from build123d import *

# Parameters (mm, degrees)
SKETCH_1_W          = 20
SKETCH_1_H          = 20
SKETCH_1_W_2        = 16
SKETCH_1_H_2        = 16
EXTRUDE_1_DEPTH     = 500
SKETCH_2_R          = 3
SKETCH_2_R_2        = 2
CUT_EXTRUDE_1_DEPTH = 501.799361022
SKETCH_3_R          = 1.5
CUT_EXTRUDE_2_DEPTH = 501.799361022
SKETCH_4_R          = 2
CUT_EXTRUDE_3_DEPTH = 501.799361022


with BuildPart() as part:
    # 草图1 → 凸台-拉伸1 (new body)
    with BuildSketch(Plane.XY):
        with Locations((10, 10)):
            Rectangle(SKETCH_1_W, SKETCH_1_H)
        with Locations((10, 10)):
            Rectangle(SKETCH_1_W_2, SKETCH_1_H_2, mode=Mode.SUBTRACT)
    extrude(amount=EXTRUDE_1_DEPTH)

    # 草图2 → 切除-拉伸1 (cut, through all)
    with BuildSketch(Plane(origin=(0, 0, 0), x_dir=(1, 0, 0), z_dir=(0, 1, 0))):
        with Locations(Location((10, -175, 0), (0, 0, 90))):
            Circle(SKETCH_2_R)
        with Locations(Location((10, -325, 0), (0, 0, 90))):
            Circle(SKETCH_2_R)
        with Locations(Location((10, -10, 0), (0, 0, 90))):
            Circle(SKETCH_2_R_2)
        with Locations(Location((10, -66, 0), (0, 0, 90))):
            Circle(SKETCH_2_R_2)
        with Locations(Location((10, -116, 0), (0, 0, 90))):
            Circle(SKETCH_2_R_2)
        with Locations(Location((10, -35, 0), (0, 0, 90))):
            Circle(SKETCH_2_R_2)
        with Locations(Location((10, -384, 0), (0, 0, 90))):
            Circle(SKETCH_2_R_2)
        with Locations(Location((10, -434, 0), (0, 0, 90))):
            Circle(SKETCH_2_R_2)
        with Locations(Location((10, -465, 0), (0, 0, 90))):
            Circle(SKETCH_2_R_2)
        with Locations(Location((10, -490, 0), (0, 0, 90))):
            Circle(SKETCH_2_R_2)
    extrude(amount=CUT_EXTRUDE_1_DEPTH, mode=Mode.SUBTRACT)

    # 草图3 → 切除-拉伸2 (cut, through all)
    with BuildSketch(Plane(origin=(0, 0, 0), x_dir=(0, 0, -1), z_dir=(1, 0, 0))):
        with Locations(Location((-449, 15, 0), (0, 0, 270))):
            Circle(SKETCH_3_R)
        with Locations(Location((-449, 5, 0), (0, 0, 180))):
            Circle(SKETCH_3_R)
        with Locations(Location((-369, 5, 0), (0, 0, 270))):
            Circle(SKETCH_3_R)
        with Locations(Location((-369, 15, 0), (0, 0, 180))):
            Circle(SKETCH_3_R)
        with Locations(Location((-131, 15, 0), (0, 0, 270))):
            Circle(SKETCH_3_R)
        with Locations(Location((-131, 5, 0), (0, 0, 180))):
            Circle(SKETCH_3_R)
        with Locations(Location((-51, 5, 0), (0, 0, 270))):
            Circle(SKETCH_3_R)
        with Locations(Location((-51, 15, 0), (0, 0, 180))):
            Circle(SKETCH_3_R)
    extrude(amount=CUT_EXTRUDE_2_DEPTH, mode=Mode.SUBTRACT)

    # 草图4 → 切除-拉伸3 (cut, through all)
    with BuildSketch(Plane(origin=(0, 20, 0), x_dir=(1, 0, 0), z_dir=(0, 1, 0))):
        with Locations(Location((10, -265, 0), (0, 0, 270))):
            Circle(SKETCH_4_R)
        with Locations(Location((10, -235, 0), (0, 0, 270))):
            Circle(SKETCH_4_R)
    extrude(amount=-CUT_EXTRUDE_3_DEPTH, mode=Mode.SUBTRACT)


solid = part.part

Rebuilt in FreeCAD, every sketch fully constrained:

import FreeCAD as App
import Part
import Sketcher
from FreeCAD import Vector


def add_polygon(sketch, points):
    """Adds a closed chain of lines whose ends are joined by coincident constraints."""
    first, n = sketch.GeometryCount, len(points)
    for a, b in zip(points, points[1:] + points[:1]):
        sketch.addGeometry(Part.LineSegment(App.Vector(*a, 0), App.Vector(*b, 0)), False)
    for i in range(n):
        sketch.addConstraint(Sketcher.Constraint("Coincident", first + i, 2, first + (i + 1) % n, 1))

doc = App.newDocument("Part")
body = doc.addObject("PartDesign::Body", "Body")

# Sketch on XY plane
sketch1 = doc.addObject("Sketcher::SketchObject", "Sketch")
body.addObject(sketch1)
sketch1.AttachmentSupport = (doc.XY_Plane, [""])
sketch1.MapMode = "FlatFace"
add_polygon(sketch1, [(0, 20), (0, 0), (20, 0), (20, 20)])  # lines 0-3
add_polygon(sketch1, [(18, 2), (2, 2), (2, 18), (18, 18)])  # lines 4-7
sketch1.addConstraint([
    Sketcher.Constraint("Vertical", 0),
    Sketcher.Constraint("Horizontal", 1),
    Sketcher.Constraint("Vertical", 2),
    Sketcher.Constraint("Horizontal", 3),
    Sketcher.Constraint("Horizontal", 4),
    Sketcher.Constraint("Vertical", 5),
    Sketcher.Constraint("Horizontal", 6),
    Sketcher.Constraint("Vertical", 7),
    Sketcher.Constraint("Coincident", 0, 2, -1, 1),
    Sketcher.Constraint("Equal", 3, 0),
    Sketcher.Constraint("Equal", 6, 5),
    Sketcher.Constraint("DistanceX", 1, 1, 1, 2, 20.0),
    Sketcher.Constraint("DistanceX", 4, 2, 4, 1, 16.0),
    Sketcher.Constraint("DistanceX", -1, 1, 4, 2, 2.0),
    Sketcher.Constraint("DistanceY", -1, 1, 4, 2, 2.0),
])
pad1 = doc.addObject("PartDesign::Pad", "Pad")
body.addObject(pad1)
pad1.Profile = sketch1
pad1.Length = 500

# Sketch on XZ plane
sketch2 = doc.addObject("Sketcher::SketchObject", "Sketch001")
body.addObject(sketch2)
sketch2.AttachmentSupport = (doc.XZ_Plane, [""])
sketch2.MapMode = "FlatFace"
sketch2.addGeometry([
    Part.Circle(Vector(10, 175, 0), Vector(0, 0, 1), 3),  # 0
    Part.Circle(Vector(10, 325, 0), Vector(0, 0, 1), 3),  # 1
    Part.Circle(Vector(10, 10, 0), Vector(0, 0, 1), 2),  # 2
    Part.Circle(Vector(10, 66, 0), Vector(0, 0, 1), 2),  # 3
    Part.Circle(Vector(10, 116, 0), Vector(0, 0, 1), 2),  # 4
    Part.Circle(Vector(10, 35, 0), Vector(0, 0, 1), 2),  # 5
    Part.Circle(Vector(10, 384, 0), Vector(0, 0, 1), 2),  # 6
    Part.Circle(Vector(10, 434, 0), Vector(0, 0, 1), 2),  # 7
    Part.Circle(Vector(10, 465, 0), Vector(0, 0, 1), 2),  # 8
    Part.Circle(Vector(10, 490, 0), Vector(0, 0, 1), 2),  # 9
], False)
sketch2.addConstraint([
    Sketcher.Constraint("Equal", 0, 1),
    Sketcher.Constraint("Equal", 2, 3),
    Sketcher.Constraint("Equal", 3, 4),
    Sketcher.Constraint("Equal", 4, 5),
    Sketcher.Constraint("Equal", 5, 6),
    Sketcher.Constraint("Equal", 6, 7),
    Sketcher.Constraint("Equal", 7, 8),
    Sketcher.Constraint("Equal", 8, 9),
    Sketcher.Constraint("Vertical", 0, 3, 1, 3),
    Sketcher.Constraint("Vertical", 1, 3, 2, 3),
    Sketcher.Constraint("Vertical", 2, 3, 3, 3),
    Sketcher.Constraint("Vertical", 3, 3, 4, 3),
    Sketcher.Constraint("Vertical", 4, 3, 5, 3),
    Sketcher.Constraint("Vertical", 5, 3, 6, 3),
    Sketcher.Constraint("Vertical", 6, 3, 7, 3),
    Sketcher.Constraint("Vertical", 7, 3, 8, 3),
    Sketcher.Constraint("Vertical", 8, 3, 9, 3),
    Sketcher.Constraint("Diameter", 0, 6.0),
    Sketcher.Constraint("Diameter", 2, 4.0),
    Sketcher.Constraint("DistanceX", -1, 1, 0, 3, 10.0),
    Sketcher.Constraint("DistanceY", -1, 1, 0, 3, 175.0),
    Sketcher.Constraint("DistanceY", -1, 1, 1, 3, 325.0),
    Sketcher.Constraint("DistanceY", -1, 1, 2, 3, 10.0),
    Sketcher.Constraint("DistanceY", -1, 1, 3, 3, 66.0),
    Sketcher.Constraint("DistanceY", -1, 1, 4, 3, 116.0),
    Sketcher.Constraint("DistanceY", -1, 1, 5, 3, 35.0),
    Sketcher.Constraint("DistanceY", -1, 1, 6, 3, 384.0),
    Sketcher.Constraint("DistanceY", -1, 1, 7, 3, 434.0),
    Sketcher.Constraint("DistanceY", -1, 1, 8, 3, 465.0),
    Sketcher.Constraint("DistanceY", -1, 1, 9, 3, 490.0),
])
pocket1 = doc.addObject("PartDesign::Pocket", "Pocket")
body.addObject(pocket1)
pocket1.Profile = sketch2
pocket1.Type = "ThroughAll"

# Sketch on YZ plane
sketch3 = doc.addObject("Sketcher::SketchObject", "Sketch002")
body.addObject(sketch3)
sketch3.AttachmentSupport = (doc.YZ_Plane, [""])
sketch3.MapMode = "FlatFace"
sketch3.addGeometry([
    Part.Circle(Vector(15, 449, 0), Vector(0, 0, 1), 1.5),  # 0
    Part.Circle(Vector(5, 449, 0), Vector(0, 0, 1), 1.5),  # 1
    Part.Circle(Vector(5, 369, 0), Vector(0, 0, 1), 1.5),  # 2
    Part.Circle(Vector(15, 369, 0), Vector(0, 0, 1), 1.5),  # 3
    Part.Circle(Vector(15, 131, 0), Vector(0, 0, 1), 1.5),  # 4
    Part.Circle(Vector(5, 131, 0), Vector(0, 0, 1), 1.5),  # 5
    Part.Circle(Vector(5, 51, 0), Vector(0, 0, 1), 1.5),  # 6
    Part.Circle(Vector(15, 51, 0), Vector(0, 0, 1), 1.5),  # 7
], False)
sketch3.addConstraint([
    Sketcher.Constraint("Equal", 0, 1),
    Sketcher.Constraint("Equal", 1, 2),
    Sketcher.Constraint("Equal", 2, 3),
    Sketcher.Constraint("Equal", 3, 4),
    Sketcher.Constraint("Equal", 4, 5),
    Sketcher.Constraint("Equal", 5, 6),
    Sketcher.Constraint("Equal", 6, 7),
    Sketcher.Constraint("Horizontal", 0, 3, 1, 3),
    Sketcher.Constraint("Horizontal", 2, 3, 3, 3),
    Sketcher.Constraint("Horizontal", 4, 3, 5, 3),
    Sketcher.Constraint("Horizontal", 6, 3, 7, 3),
    Sketcher.Constraint("Vertical", 1, 3, 2, 3),
    Sketcher.Constraint("Vertical", 0, 3, 3, 3),
    Sketcher.Constraint("Vertical", 3, 3, 4, 3),
    Sketcher.Constraint("Vertical", 2, 3, 5, 3),
    Sketcher.Constraint("Vertical", 5, 3, 6, 3),
    Sketcher.Constraint("Vertical", 4, 3, 7, 3),
    Sketcher.Constraint("Diameter", 0, 3.0),
    Sketcher.Constraint("DistanceX", -1, 1, 0, 3, 15.0),
    Sketcher.Constraint("DistanceY", -1, 1, 0, 3, 449.0),
    Sketcher.Constraint("DistanceX", -1, 1, 1, 3, 5.0),
    Sketcher.Constraint("DistanceY", -1, 1, 2, 3, 369.0),
    Sketcher.Constraint("DistanceY", -1, 1, 4, 3, 131.0),
    Sketcher.Constraint("DistanceY", -1, 1, 6, 3, 51.0),
])
pocket2 = doc.addObject("PartDesign::Pocket", "Pocket001")
body.addObject(pocket2)
pocket2.Profile = sketch3
pocket2.Type = "ThroughAll"
pocket2.Reversed = True

# Sketch on XZ plane
sketch4 = doc.addObject("Sketcher::SketchObject", "Sketch003")
body.addObject(sketch4)
sketch4.AttachmentSupport = (doc.XZ_Plane, [""])
sketch4.MapMode = "FlatFace"
sketch4.AttachmentOffset = App.Placement(Vector(0, 0, -20), App.Rotation())
sketch4.addGeometry([
    Part.Circle(Vector(10, 265, 0), Vector(0, 0, 1), 2),
    Part.Circle(Vector(10, 235, 0), Vector(0, 0, 1), 2),
], False)
sketch4.addConstraint([
    Sketcher.Constraint("Equal", 0, 1),
    Sketcher.Constraint("Vertical", 0, 3, 1, 3),
    Sketcher.Constraint("Diameter", 0, 4.0),
    Sketcher.Constraint("DistanceX", -1, 1, 0, 3, 10.0),
    Sketcher.Constraint("DistanceY", -1, 1, 0, 3, 265.0),
    Sketcher.Constraint("DistanceY", -1, 1, 1, 3, 235.0),
])
pocket3 = doc.addObject("PartDesign::Pocket", "Pocket002")
body.addObject(pocket3)
pocket3.Profile = sketch4
pocket3.Type = "ThroughAll"
pocket3.Reversed = True

doc.recompute()
